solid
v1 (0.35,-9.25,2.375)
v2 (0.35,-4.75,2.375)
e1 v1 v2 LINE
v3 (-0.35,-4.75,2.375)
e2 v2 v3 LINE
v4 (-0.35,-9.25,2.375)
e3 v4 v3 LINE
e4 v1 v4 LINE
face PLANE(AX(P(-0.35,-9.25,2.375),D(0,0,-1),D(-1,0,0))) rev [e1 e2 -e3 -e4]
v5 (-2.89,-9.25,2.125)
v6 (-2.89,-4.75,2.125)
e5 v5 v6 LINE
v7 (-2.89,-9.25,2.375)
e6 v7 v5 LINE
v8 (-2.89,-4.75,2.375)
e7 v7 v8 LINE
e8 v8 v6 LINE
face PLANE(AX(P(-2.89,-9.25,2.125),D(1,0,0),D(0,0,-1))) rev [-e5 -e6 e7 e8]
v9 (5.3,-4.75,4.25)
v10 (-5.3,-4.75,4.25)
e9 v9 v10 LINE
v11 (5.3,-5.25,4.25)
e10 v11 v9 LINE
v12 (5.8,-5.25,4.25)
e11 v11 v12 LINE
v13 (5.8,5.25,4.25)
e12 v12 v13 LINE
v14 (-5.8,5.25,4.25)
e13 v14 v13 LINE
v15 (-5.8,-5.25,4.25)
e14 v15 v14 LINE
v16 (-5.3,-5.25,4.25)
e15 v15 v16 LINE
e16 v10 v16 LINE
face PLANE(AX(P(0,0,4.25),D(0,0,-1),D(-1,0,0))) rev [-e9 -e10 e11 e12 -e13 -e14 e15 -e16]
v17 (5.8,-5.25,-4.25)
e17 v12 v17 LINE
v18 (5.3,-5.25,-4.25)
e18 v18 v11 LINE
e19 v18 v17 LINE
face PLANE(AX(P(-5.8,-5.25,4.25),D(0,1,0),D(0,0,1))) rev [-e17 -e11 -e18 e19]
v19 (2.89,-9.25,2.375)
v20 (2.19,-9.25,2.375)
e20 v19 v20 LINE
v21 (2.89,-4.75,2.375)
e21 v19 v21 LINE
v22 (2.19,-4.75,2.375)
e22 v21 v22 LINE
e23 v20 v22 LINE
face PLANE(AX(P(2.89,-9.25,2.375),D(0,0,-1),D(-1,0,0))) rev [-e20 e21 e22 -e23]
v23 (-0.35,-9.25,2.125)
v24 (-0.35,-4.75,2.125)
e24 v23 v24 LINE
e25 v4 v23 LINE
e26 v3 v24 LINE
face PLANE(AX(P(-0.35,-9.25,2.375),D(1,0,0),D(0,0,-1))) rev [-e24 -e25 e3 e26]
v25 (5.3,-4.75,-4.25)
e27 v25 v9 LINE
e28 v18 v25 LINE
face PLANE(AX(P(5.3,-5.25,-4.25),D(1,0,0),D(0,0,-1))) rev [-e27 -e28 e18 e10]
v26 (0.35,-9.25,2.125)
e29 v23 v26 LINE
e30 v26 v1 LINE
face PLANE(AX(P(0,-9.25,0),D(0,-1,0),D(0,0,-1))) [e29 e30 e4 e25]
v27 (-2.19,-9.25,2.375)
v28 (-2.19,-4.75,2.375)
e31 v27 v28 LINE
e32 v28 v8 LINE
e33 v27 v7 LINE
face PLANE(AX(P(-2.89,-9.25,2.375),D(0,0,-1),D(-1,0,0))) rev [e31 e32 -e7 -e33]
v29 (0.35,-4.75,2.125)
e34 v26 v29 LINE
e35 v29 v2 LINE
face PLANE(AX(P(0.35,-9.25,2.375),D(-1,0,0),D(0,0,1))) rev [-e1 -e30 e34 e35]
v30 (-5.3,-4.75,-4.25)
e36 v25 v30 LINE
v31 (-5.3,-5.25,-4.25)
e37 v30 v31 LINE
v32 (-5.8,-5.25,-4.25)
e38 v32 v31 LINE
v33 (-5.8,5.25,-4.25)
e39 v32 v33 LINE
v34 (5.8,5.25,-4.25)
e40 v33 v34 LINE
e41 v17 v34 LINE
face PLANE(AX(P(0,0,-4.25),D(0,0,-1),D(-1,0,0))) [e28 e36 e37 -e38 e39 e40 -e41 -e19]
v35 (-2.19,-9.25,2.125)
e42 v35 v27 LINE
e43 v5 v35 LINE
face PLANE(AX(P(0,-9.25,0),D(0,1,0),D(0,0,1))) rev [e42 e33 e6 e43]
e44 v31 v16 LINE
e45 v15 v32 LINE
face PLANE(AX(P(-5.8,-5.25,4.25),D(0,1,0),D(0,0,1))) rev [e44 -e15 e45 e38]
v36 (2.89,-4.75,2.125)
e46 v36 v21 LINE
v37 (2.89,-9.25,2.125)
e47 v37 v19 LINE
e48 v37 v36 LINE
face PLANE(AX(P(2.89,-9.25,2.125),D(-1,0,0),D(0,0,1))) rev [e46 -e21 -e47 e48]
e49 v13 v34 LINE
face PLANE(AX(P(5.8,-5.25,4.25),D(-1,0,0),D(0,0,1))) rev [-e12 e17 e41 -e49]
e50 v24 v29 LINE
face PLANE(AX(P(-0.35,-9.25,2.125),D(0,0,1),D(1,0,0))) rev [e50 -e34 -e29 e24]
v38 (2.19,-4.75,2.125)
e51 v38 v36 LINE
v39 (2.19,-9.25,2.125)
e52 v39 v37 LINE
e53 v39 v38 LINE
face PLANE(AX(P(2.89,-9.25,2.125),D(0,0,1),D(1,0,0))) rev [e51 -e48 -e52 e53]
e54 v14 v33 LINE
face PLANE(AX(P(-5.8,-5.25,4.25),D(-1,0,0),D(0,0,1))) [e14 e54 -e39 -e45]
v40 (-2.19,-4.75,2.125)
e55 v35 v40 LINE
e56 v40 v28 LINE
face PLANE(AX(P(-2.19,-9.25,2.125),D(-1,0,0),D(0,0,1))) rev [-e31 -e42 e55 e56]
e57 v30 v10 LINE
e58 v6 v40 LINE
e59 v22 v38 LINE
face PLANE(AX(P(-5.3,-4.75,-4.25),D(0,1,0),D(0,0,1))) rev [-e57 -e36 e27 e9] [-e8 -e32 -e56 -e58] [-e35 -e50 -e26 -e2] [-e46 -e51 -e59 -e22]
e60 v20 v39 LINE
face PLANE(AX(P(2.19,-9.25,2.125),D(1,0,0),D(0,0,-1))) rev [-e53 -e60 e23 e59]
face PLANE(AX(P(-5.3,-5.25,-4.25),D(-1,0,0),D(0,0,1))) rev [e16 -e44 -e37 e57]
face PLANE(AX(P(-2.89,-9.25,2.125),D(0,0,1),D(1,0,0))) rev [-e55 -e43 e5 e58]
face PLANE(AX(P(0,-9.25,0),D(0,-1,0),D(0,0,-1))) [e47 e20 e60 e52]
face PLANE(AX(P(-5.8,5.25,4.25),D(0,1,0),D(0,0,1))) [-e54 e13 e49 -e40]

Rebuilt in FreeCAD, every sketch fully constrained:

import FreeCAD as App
import Part
import Sketcher

V = App.Vector
Q = App.Units.Quantity

doc = App.newDocument("Part")
body = doc.addObject("PartDesign::Body", "Body")

sketch1 = doc.addObject("Sketcher::SketchObject", "Sketch")
body.addObject(sketch1)
sketch1.AttachmentSupport = (doc.XY_Plane, [""])
sketch1.MapMode = "FlatFace"
sketch1.addGeometry([
    Part.LineSegment(V(-6, 5, 0), V(-6, -5, 0)),
    Part.LineSegment(V(-6, -5, 0), V(6, -5, 0)),
    Part.LineSegment(V(6, -5, 0), V(6, 5, 0)),
    Part.LineSegment(V(6, 5, 0), V(-6, 5, 0)),
], False)
sketch1.addConstraint([
    Sketcher.Constraint("Coincident", 0, 2, 1, 1),
    Sketcher.Constraint("Coincident", 1, 2, 2, 1),
    Sketcher.Constraint("Coincident", 2, 2, 3, 1),
    Sketcher.Constraint("Coincident", 3, 2, 0, 1),
    Sketcher.Constraint("Vertical", 0),
    Sketcher.Constraint("Horizontal", 1),
    Sketcher.Constraint("Vertical", 2),
    Sketcher.Constraint("Horizontal", 3),
    Sketcher.Constraint("Symmetric", 0, 2, 2, 2, -1, 1),
    Sketcher.Constraint("DistanceX", 1, 1, 1, 2, Q("11.6 mm")),
    Sketcher.Constraint("DistanceY", 0, 2, 0, 1, Q("10.5 mm")),
])
pad1 = doc.addObject("PartDesign::Pad", "Pad")
body.addObject(pad1)
pad1.Profile = sketch1
pad1.Length = 8.5
pad1.Midplane = True

sketch2 = doc.addObject("Sketcher::SketchObject", "Sketch001")
body.addObject(sketch2)
sketch2.AttachmentSupport = (doc.XY_Plane, [""])
sketch2.MapMode = "FlatFace"
sketch2.AttachmentOffset = App.Placement(V(0, 0, 4.25), App.Rotation())
sketch2.addGeometry([
    Part.LineSegment(V(-5.3, -4.8, 0), V(-5.3, -5.2, 0)),
    Part.LineSegment(V(-5.3, -5.2, 0), V(5.3, -5.2, 0)),
    Part.LineSegment(V(5.3, -5.2, 0), V(5.3, -4.8, 0)),
    Part.LineSegment(V(5.3, -4.8, 0), V(-5.3, -4.8, 0)),
], False)
sketch2.addConstraint([
    Sketcher.Constraint("Coincident", 0, 2, 1, 1),
    Sketcher.Constraint("Coincident", 1, 2, 2, 1),
    Sketcher.Constraint("Coincident", 2, 2, 3, 1),
    Sketcher.Constraint("Coincident", 3, 2, 0, 1),
    Sketcher.Constraint("Vertical", 0),
    Sketcher.Constraint("Horizontal", 1),
    Sketcher.Constraint("Vertical", 2),
    Sketcher.Constraint("Horizontal", 3),
    Sketcher.Constraint("DistanceX", 1, 1, 1, 2, Q("10.6 mm")),
    Sketcher.Constraint("DistanceY", 0, 2, 0, 1, Q("0.5 mm")),
    Sketcher.Constraint("DistanceX", 0, 2, -1, 1, Q("5.3 mm")),
    Sketcher.Constraint("DistanceY", 0, 2, -1, 1, Q("5.25 mm")),
])
pocket1 = doc.addObject("PartDesign::Pocket", "Pocket")
body.addObject(pocket1)
pocket1.Profile = sketch2
pocket1.Type = "ThroughAll"

sketch3 = doc.addObject("Sketcher::SketchObject", "Sketch002")
body.addObject(sketch3)
sketch3.AttachmentSupport = (doc.XZ_Plane, [""])
sketch3.MapMode = "FlatFace"
sketch3.AttachmentOffset = App.Placement(V(0, 0, 4.75), App.Rotation())
sketch3.addGeometry([
    Part.LineSegment(V(0.35, 2.12, 0), V(0.35, 2.38, 0)),
    Part.LineSegment(V(0.35, 2.38, 0), V(-0.35, 2.38, 0)),
    Part.LineSegment(V(-0.35, 2.38, 0), V(-0.35, 2.12, 0)),
    Part.LineSegment(V(-0.35, 2.12, 0), V(0.35, 2.12, 0)),
    Part.LineSegment(V(-2.19, 2.12, 0), V(-2.19, 2.38, 0)),
    Part.LineSegment(V(-2.19, 2.38, 0), V(-2.89, 2.38, 0)),
    Part.LineSegment(V(-2.89, 2.38, 0), V(-2.89, 2.12, 0)),
    Part.LineSegment(V(-2.89, 2.12, 0), V(-2.19, 2.12, 0)),
    Part.LineSegment(V(2.89, 2.12, 0), V(2.89, 2.38, 0)),
    Part.LineSegment(V(2.89, 2.38, 0), V(2.19, 2.38, 0)),
    Part.LineSegment(V(2.19, 2.38, 0), V(2.19, 2.12, 0)),
    Part.LineSegment(V(2.19, 2.12, 0), V(2.89, 2.12, 0)),
], False)
sketch3.addConstraint([
    Sketcher.Constraint("Coincident", 0, 2, 1, 1),
    Sketcher.Constraint("Coincident", 1, 2, 2, 1),
    Sketcher.Constraint("Coincident", 2, 2, 3, 1),
    Sketcher.Constraint("Coincident", 3, 2, 0, 1),
    Sketcher.Constraint("Coincident", 4, 2, 5, 1),
    Sketcher.Constraint("Coincident", 5, 2, 6, 1),
    Sketcher.Constraint("Coincident", 6, 2, 7, 1),
    Sketcher.Constraint("Coincident", 7, 2, 4, 1),
    Sketcher.Constraint("Coincident", 8, 2, 9, 1),
    Sketcher.Constraint("Coincident", 9, 2, 10, 1),
    Sketcher.Constraint("Coincident", 10, 2, 11, 1),
    Sketcher.Constraint("Coincident", 11, 2, 8, 1),
    Sketcher.Constraint("Vertical", 0),
    Sketcher.Constraint("Horizontal", 1),
    Sketcher.Constraint("Vertical", 2),
    Sketcher.Constraint("Horizontal", 3),
    Sketcher.Constraint("Vertical", 4),
    Sketcher.Constraint("Horizontal", 5),
    Sketcher.Constraint("Vertical", 6),
    Sketcher.Constraint("Horizontal", 7),
    Sketcher.Constraint("Vertical", 8),
    Sketcher.Constraint("Horizontal", 9),
    Sketcher.Constraint("Vertical", 10),
    Sketcher.Constraint("Horizontal", 11),
    Sketcher.Constraint("Symmetric", 5, 2, 8, 2, -2),
    Sketcher.Constraint("Symmetric", 7, 2, 10, 2, -2),
    Sketcher.Constraint("Horizontal", 1, 2, 4, 2),
    Sketcher.Constraint("Horizontal", 3, 2, 6, 2),
    Sketcher.Constraint("Equal", 3, 5),
    Sketcher.Constraint("DistanceX", 1, 2, 1, 1, Q("0.7 mm")),
    Sketcher.Constraint("DistanceY", 0, 1, 0, 2, Q("0.25 mm")),
    Sketcher.Constraint("DistanceX", -1, 1, 0, 2, Q("0.35 mm")),
    Sketcher.Constraint("DistanceX", 4, 2, -1, 1, Q("2.19 mm")),
    Sketcher.Constraint("DistanceY", -1, 1, 0, 2, Q("2.375 mm")),
])
pad2 = doc.addObject("PartDesign::Pad", "Pad001")
body.addObject(pad2)
pad2.Profile = sketch3
pad2.Length = 4.5

doc.recompute()
